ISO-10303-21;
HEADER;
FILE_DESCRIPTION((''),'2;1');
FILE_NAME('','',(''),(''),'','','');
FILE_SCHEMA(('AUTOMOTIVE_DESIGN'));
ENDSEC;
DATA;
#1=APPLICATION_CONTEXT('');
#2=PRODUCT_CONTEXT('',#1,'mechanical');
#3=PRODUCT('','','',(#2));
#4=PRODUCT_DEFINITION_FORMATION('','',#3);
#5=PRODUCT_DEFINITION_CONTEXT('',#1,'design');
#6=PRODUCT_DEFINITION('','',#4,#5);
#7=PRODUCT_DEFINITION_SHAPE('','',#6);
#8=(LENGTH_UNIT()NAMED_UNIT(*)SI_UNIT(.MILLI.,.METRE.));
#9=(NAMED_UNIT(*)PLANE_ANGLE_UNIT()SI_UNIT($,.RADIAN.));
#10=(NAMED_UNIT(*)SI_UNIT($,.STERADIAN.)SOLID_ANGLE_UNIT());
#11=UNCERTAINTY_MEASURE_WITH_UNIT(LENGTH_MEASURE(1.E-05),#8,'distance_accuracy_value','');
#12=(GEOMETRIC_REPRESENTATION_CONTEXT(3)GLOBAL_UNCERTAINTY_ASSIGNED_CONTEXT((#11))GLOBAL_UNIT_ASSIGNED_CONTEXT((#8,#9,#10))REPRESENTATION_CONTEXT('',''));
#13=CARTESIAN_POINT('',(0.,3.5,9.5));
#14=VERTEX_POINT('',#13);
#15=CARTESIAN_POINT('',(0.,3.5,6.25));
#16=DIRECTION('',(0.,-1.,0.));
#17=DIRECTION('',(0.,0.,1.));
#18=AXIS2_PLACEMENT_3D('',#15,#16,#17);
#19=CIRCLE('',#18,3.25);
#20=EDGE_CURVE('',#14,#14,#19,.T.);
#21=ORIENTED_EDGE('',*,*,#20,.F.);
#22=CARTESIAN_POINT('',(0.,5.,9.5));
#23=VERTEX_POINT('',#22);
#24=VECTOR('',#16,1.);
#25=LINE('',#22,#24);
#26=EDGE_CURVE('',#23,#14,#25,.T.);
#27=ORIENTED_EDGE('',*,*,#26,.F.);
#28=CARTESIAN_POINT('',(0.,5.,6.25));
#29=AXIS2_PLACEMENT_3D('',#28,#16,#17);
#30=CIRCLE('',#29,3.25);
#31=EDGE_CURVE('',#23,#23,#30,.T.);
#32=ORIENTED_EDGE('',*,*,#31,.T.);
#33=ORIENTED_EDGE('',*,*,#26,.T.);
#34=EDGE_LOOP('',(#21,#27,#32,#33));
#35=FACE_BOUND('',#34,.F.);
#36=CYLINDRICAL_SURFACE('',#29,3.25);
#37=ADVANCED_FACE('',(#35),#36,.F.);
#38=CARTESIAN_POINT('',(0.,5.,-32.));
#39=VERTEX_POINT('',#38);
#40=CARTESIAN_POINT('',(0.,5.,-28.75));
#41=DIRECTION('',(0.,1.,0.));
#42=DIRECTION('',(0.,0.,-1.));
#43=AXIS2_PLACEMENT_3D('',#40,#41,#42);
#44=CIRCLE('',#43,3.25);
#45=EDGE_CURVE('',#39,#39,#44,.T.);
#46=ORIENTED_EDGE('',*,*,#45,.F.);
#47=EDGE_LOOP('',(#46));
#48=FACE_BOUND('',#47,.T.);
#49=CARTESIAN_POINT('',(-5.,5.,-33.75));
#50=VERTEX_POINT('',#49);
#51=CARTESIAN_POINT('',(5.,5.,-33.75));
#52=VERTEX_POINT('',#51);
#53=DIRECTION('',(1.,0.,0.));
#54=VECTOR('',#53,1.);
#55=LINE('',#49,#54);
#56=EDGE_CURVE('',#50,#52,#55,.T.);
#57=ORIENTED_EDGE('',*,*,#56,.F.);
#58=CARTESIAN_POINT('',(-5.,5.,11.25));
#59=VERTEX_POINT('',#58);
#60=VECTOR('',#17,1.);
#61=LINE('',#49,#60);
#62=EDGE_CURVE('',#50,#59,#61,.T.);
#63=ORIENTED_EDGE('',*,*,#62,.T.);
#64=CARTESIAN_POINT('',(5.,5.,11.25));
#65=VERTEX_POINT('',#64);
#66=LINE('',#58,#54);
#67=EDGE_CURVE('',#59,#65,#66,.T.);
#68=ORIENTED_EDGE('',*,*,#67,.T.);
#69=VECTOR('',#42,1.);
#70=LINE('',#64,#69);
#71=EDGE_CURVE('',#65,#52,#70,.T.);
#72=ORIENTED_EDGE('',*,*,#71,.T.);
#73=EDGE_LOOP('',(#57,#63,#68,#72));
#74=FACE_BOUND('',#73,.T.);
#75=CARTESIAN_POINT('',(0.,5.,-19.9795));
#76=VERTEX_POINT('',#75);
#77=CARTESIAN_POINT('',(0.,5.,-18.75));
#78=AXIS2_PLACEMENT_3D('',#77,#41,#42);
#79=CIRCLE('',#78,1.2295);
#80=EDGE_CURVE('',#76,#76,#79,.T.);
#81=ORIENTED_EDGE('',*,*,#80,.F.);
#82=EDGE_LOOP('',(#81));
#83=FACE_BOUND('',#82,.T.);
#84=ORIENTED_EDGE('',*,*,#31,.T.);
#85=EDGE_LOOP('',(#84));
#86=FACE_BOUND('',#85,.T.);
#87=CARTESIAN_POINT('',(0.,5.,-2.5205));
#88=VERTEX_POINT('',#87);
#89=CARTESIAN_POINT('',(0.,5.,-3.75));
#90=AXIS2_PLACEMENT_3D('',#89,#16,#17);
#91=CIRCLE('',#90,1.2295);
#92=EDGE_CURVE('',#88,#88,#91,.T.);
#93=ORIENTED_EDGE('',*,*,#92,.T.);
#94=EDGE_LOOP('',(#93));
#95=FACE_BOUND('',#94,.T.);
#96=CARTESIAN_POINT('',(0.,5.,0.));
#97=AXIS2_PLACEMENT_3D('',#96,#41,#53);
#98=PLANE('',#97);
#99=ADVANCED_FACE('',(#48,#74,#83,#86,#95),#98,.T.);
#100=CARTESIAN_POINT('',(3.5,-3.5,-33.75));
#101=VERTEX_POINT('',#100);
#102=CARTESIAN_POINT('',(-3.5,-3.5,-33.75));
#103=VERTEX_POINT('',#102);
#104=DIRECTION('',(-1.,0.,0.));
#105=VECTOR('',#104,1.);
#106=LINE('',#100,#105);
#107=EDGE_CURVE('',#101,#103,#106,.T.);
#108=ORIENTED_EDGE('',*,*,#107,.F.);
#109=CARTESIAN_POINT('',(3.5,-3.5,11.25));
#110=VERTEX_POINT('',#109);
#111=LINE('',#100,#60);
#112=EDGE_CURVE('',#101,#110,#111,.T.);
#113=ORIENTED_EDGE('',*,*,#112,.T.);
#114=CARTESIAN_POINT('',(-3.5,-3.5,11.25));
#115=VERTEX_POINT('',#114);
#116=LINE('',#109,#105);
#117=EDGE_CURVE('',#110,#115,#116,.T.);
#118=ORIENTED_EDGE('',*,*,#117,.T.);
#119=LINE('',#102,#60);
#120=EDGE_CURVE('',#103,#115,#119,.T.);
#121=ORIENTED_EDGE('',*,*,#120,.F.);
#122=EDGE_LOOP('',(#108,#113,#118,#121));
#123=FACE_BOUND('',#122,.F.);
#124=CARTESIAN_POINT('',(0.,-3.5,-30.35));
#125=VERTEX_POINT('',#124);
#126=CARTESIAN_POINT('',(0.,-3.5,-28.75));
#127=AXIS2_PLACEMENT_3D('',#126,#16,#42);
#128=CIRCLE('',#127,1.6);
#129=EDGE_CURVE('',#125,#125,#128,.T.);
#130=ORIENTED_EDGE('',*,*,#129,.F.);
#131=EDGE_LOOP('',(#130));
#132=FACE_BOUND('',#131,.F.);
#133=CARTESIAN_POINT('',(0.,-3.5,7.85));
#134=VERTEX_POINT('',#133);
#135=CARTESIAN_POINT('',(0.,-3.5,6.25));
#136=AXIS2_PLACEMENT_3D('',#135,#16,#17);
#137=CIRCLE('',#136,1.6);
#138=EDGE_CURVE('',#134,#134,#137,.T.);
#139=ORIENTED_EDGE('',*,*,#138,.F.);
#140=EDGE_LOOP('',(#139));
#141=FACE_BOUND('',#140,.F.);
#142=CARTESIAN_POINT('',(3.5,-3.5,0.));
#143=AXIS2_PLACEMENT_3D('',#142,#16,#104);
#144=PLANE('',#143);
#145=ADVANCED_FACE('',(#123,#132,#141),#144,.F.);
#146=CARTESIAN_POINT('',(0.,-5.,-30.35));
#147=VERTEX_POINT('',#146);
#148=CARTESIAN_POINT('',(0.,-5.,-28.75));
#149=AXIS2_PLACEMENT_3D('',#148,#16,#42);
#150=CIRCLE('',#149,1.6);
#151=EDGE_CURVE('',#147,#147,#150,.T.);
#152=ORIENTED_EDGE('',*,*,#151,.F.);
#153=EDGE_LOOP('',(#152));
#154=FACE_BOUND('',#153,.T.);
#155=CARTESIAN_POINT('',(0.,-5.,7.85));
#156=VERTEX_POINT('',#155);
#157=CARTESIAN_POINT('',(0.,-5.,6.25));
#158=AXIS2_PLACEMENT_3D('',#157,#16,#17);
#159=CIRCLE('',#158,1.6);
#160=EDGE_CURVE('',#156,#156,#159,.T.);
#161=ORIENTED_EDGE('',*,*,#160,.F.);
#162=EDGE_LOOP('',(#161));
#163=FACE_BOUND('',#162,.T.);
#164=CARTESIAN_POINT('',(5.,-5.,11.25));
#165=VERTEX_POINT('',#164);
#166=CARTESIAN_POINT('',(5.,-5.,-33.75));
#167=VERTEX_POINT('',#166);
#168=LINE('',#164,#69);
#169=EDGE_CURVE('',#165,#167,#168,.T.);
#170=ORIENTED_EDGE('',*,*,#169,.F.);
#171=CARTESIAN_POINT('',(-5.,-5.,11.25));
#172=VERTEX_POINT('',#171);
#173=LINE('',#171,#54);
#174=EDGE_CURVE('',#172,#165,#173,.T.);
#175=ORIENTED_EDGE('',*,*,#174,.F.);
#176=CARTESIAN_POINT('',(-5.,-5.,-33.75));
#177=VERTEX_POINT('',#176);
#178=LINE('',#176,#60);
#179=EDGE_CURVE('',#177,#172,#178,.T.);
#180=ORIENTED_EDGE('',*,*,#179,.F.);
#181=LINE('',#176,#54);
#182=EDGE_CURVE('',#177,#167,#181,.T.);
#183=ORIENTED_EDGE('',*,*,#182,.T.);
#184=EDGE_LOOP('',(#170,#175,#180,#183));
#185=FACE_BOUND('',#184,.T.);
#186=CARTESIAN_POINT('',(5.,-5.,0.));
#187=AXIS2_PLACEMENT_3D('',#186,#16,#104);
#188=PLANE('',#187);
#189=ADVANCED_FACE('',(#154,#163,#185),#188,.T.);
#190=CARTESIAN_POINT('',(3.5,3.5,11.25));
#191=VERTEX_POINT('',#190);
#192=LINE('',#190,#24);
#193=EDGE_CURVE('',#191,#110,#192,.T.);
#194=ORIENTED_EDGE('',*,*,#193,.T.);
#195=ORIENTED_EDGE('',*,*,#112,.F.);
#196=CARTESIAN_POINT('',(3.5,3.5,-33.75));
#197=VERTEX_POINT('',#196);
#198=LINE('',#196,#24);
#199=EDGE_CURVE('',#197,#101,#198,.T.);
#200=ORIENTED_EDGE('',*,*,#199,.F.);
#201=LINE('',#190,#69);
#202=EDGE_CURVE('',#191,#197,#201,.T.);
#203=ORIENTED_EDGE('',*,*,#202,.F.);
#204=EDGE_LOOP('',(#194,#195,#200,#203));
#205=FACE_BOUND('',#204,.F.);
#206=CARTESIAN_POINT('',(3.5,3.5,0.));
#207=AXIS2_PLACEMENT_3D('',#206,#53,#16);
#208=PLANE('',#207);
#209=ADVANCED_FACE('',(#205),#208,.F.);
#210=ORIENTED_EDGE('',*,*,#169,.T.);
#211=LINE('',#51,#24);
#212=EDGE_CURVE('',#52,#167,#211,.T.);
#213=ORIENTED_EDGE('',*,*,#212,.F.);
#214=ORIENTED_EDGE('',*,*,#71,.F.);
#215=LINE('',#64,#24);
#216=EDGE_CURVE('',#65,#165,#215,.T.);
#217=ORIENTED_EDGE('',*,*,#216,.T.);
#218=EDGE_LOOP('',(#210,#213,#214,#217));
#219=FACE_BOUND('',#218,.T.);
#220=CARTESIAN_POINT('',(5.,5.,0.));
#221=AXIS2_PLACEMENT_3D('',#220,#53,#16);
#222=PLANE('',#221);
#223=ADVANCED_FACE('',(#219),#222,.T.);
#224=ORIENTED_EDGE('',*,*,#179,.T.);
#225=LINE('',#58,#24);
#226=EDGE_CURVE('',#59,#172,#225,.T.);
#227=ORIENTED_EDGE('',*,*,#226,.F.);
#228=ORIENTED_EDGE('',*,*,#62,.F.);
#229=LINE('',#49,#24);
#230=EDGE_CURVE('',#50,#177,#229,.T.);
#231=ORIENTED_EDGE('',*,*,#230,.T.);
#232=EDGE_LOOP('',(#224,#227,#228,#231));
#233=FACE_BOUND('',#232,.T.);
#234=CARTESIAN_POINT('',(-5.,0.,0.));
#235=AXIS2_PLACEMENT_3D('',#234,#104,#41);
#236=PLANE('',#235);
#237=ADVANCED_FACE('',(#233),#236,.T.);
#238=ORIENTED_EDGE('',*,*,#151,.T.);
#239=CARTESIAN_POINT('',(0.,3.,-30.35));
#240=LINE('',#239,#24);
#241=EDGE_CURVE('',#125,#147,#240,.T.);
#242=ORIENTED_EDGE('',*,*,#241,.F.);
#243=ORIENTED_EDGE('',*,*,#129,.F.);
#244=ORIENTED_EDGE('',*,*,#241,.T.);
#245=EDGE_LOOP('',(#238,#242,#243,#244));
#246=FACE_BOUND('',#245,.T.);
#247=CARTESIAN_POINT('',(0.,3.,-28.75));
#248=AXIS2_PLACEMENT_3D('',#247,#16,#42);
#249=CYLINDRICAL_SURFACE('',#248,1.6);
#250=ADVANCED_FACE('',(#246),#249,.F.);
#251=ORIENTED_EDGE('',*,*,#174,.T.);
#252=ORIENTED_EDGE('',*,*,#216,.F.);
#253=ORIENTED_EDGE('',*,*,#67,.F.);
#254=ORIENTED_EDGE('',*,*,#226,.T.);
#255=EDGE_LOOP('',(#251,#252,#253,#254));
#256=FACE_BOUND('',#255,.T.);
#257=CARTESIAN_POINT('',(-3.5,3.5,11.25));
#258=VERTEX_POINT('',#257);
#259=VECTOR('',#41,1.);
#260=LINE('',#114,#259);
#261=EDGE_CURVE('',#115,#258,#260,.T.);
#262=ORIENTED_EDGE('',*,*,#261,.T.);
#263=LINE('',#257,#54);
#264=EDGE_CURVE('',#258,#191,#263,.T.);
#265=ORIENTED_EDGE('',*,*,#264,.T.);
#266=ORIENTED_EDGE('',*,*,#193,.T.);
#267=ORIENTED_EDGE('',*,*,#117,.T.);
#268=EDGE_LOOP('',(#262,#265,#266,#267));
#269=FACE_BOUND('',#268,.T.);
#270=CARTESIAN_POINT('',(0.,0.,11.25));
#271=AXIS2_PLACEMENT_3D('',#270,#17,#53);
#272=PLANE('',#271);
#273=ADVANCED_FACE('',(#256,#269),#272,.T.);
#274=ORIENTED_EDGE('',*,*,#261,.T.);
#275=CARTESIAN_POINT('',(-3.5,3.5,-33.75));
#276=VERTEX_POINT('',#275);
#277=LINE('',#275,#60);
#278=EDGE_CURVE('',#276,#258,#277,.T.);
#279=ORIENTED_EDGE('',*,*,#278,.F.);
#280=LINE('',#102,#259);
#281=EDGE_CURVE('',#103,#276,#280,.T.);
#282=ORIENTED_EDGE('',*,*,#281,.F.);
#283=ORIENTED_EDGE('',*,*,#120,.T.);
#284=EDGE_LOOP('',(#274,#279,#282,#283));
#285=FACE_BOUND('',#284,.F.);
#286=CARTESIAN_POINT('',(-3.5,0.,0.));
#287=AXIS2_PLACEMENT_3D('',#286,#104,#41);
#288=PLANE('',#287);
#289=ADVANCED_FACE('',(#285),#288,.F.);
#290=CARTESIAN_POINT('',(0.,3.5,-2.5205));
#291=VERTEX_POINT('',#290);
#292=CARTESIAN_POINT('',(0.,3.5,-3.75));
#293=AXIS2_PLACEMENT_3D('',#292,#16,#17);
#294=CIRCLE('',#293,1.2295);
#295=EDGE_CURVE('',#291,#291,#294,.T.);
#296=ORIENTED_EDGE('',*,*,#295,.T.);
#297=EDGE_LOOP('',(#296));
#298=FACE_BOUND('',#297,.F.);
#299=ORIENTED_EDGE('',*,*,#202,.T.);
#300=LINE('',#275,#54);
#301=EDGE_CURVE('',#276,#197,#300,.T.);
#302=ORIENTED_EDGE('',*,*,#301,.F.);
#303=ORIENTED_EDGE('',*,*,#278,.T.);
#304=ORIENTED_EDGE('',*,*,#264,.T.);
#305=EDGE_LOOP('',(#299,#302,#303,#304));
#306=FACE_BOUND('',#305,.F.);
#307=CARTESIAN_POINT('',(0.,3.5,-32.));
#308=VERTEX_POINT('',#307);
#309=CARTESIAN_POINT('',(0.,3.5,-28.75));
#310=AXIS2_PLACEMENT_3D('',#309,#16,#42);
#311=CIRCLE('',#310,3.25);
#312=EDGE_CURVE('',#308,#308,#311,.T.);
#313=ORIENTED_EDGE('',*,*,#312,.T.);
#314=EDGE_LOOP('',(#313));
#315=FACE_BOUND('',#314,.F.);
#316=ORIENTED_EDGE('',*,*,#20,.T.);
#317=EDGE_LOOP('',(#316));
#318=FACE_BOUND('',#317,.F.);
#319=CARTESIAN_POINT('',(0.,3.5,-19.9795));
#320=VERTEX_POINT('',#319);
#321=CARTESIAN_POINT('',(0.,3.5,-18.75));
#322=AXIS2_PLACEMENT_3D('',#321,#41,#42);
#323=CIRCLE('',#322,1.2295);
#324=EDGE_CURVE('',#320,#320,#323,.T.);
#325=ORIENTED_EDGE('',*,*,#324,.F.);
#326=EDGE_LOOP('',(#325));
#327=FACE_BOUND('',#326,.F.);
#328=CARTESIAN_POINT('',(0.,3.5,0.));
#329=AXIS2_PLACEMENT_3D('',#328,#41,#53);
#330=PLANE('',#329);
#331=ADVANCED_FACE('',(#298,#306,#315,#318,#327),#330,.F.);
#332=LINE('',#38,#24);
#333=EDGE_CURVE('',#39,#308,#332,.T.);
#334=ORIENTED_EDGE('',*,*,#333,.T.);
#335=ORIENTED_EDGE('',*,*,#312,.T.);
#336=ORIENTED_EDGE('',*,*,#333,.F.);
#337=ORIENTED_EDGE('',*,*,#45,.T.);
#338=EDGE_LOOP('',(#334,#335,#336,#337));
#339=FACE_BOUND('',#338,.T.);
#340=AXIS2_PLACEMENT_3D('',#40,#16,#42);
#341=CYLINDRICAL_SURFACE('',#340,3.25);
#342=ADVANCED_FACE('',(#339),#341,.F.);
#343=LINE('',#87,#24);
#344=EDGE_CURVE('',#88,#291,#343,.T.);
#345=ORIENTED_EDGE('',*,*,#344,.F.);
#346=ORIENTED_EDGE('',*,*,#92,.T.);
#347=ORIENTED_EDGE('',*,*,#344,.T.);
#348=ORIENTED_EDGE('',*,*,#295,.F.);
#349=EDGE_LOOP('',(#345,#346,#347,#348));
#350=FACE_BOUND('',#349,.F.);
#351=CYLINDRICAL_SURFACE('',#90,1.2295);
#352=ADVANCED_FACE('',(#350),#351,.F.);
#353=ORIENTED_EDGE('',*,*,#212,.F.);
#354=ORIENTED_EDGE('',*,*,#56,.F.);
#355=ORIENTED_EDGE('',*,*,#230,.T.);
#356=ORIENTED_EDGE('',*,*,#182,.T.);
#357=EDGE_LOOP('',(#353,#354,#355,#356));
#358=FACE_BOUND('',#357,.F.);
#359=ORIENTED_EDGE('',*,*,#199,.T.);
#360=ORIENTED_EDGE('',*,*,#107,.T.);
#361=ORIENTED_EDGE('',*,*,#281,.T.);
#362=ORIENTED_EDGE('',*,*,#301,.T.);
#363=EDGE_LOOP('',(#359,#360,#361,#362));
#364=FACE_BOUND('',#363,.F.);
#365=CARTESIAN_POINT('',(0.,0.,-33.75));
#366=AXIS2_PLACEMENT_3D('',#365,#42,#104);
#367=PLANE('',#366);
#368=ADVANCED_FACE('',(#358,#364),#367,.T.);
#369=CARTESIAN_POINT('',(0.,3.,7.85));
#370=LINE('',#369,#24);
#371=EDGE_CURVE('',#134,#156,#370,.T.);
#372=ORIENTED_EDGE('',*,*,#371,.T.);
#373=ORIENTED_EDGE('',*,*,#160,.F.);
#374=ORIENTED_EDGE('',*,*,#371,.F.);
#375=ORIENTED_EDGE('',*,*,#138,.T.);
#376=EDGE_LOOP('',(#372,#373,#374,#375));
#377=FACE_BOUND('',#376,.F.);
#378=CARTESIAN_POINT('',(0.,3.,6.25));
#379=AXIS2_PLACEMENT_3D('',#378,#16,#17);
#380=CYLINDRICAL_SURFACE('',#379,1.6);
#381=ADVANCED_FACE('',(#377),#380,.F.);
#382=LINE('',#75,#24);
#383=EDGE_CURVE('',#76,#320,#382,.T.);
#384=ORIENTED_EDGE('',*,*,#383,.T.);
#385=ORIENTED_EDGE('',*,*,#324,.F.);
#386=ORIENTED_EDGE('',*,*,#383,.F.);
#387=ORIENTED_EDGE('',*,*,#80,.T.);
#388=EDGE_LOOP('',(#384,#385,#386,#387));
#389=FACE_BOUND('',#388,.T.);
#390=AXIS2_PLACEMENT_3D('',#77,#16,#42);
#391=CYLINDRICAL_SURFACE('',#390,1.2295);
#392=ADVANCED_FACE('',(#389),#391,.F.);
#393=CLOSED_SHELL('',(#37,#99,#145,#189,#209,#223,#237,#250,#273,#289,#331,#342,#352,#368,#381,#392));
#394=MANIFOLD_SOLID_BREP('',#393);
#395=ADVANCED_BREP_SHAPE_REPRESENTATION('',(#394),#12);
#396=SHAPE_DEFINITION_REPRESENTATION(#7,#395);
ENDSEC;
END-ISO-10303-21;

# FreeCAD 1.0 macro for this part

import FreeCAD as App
import Part
import Sketcher
from FreeCAD import Vector
Q = App.Units.Quantity


def add_polygon(sketch, points):
    """Adds a closed chain of lines whose ends are joined by coincident constraints."""
    first, n = sketch.GeometryCount, len(points)
    for a, b in zip(points, points[1:] + points[:1]):
        sketch.addGeometry(Part.LineSegment(App.Vector(*a, 0), App.Vector(*b, 0)), False)
    for i in range(n):
        sketch.addConstraint(Sketcher.Constraint("Coincident", first + i, 2, first + (i + 1) % n, 1))

doc = App.newDocument("Part")
body = doc.addObject("PartDesign::Body", "Body")

# Sketch on XY plane
sketch1 = body.newObject("Sketcher::SketchObject", "Sketch")
sketch1.AttachmentSupport = (doc.getObject("XY_Plane"), [""])
sketch1.MapMode = "FlatFace"
add_polygon(sketch1, [(5, 5), (-5, 5), (-5, -5), (5, -5)])  # lines 0-3
add_polygon(sketch1, [(3.5, 3.5), (3.5, -3.5), (-3.5, -3.5), (-3.5, 3.5)])  # lines 4-7
sketch1.addConstraint([
    Sketcher.Constraint("Horizontal", 0),
    Sketcher.Constraint("Vertical", 1),
    Sketcher.Constraint("Horizontal", 2),
    Sketcher.Constraint("Vertical", 3),
    Sketcher.Constraint("Vertical", 4),
    Sketcher.Constraint("Horizontal", 5),
    Sketcher.Constraint("Vertical", 6),
    Sketcher.Constraint("Horizontal", 7),
    Sketcher.Constraint("Symmetric", 0, 2, 2, 2, -1, 1),
    Sketcher.Constraint("Symmetric", 4, 2, 6, 2, -1, 1),
    Sketcher.Constraint("Equal", 2, 1),
    Sketcher.Constraint("Equal", 7, 4),
    Sketcher.Constraint("DistanceX", 0, 2, 0, 1, Q("10 mm")),
    Sketcher.Constraint("DistanceX", 4, 2, 2, 2, Q("1.5 mm")),
])
pad1 = body.newObject("PartDesign::Pad", "Pad")
pad1.Profile = sketch1
pad1.Length = 22.5
pad1.Midplane = True

# Sketch on XZ plane
sketch2 = body.newObject("Sketcher::SketchObject", "Sketch001")
sketch2.AttachmentSupport = (doc.getObject("XZ_Plane"), [""])
sketch2.MapMode = "FlatFace"
sketch2.AttachmentOffset = App.Placement(Vector(0, 0, -5), App.Rotation())
sketch2.addGeometry(Part.Circle(Vector(0, 6.25, 0), Vector(0, 0, 1), 1.6), False)
sketch2.addConstraint([
    Sketcher.Constraint("PointOnObject", 0, 3, -2),
    Sketcher.Constraint("Diameter", 0, Q("3.2 mm")),
    Sketcher.Constraint("DistanceY", -1, 1, 0, 3, Q("6.25 mm")),
])
doc.recompute()
hole = body.newObject("PartDesign::Hole", "Hole")
hole.Profile = sketch2
hole.ThreadType = "None"
hole.Diameter = 3.2
hole.DepthType = "ThroughAll"
hole.HoleCutType = "Counterbore"
hole.HoleCutDiameter = 6.5
hole.HoleCutDepth = 2
hole.Reversed = True

# Sketch on XZ plane
sketch3 = body.newObject("Sketcher::SketchObject", "Sketch002")
sketch3.AttachmentSupport = (doc.getObject("XZ_Plane"), [""])
sketch3.MapMode = "FlatFace"
sketch3.AttachmentOffset = App.Placement(Vector(0, 0, -5), App.Rotation())
sketch3.addGeometry([
    Part.Circle(Vector(0, -3.75, 0), Vector(0, 0, 1), 1.2295),
    Part.Circle(Vector(0, 8.25, 0), Vector(0, 0, 1), 1.2295),
], False)
sketch3.addConstraint([
    Sketcher.Constraint("Equal", 0, 1),
    Sketcher.Constraint("PointOnObject", 0, 3, -2),
    Sketcher.Constraint("PointOnObject", 1, 3, -2),
    Sketcher.Constraint("Diameter", 0, Q("2.459 mm")),
    Sketcher.Constraint("DistanceY", 0, 3, 1, 3, Q("12 mm")),
    Sketcher.Constraint("DistanceY", 0, 3, -1, 1, Q("3.75 mm")),
])
doc.recompute()
hole2 = body.newObject("PartDesign::Hole", "Hole001")
hole2.Profile = sketch3
hole2.ThreadType = "None"
hole2.Diameter = 2.459
hole2.DepthType = "Dimension"
hole2.Depth = 1.5
hole2.DrillPoint = "Flat"
hole2.Reversed = True
doc.recompute()

datumplane = body.newObject("PartDesign::Plane", "DatumPlane")
datumplane.AttachmentSupport = (doc.getObject("XY_Plane"), [""])
datumplane.MapMode = "FlatFace"
datumplane.AttachmentOffset = App.Placement(Vector(0, 0, -11.25), App.Rotation())
mirrored = body.newObject("PartDesign::Mirrored", "Mirrored")
mirrored.Originals = [pad1, hole, hole2]
mirrored.MirrorPlane = (datumplane, [""])
body.Tip = mirrored

doc.recompute()
